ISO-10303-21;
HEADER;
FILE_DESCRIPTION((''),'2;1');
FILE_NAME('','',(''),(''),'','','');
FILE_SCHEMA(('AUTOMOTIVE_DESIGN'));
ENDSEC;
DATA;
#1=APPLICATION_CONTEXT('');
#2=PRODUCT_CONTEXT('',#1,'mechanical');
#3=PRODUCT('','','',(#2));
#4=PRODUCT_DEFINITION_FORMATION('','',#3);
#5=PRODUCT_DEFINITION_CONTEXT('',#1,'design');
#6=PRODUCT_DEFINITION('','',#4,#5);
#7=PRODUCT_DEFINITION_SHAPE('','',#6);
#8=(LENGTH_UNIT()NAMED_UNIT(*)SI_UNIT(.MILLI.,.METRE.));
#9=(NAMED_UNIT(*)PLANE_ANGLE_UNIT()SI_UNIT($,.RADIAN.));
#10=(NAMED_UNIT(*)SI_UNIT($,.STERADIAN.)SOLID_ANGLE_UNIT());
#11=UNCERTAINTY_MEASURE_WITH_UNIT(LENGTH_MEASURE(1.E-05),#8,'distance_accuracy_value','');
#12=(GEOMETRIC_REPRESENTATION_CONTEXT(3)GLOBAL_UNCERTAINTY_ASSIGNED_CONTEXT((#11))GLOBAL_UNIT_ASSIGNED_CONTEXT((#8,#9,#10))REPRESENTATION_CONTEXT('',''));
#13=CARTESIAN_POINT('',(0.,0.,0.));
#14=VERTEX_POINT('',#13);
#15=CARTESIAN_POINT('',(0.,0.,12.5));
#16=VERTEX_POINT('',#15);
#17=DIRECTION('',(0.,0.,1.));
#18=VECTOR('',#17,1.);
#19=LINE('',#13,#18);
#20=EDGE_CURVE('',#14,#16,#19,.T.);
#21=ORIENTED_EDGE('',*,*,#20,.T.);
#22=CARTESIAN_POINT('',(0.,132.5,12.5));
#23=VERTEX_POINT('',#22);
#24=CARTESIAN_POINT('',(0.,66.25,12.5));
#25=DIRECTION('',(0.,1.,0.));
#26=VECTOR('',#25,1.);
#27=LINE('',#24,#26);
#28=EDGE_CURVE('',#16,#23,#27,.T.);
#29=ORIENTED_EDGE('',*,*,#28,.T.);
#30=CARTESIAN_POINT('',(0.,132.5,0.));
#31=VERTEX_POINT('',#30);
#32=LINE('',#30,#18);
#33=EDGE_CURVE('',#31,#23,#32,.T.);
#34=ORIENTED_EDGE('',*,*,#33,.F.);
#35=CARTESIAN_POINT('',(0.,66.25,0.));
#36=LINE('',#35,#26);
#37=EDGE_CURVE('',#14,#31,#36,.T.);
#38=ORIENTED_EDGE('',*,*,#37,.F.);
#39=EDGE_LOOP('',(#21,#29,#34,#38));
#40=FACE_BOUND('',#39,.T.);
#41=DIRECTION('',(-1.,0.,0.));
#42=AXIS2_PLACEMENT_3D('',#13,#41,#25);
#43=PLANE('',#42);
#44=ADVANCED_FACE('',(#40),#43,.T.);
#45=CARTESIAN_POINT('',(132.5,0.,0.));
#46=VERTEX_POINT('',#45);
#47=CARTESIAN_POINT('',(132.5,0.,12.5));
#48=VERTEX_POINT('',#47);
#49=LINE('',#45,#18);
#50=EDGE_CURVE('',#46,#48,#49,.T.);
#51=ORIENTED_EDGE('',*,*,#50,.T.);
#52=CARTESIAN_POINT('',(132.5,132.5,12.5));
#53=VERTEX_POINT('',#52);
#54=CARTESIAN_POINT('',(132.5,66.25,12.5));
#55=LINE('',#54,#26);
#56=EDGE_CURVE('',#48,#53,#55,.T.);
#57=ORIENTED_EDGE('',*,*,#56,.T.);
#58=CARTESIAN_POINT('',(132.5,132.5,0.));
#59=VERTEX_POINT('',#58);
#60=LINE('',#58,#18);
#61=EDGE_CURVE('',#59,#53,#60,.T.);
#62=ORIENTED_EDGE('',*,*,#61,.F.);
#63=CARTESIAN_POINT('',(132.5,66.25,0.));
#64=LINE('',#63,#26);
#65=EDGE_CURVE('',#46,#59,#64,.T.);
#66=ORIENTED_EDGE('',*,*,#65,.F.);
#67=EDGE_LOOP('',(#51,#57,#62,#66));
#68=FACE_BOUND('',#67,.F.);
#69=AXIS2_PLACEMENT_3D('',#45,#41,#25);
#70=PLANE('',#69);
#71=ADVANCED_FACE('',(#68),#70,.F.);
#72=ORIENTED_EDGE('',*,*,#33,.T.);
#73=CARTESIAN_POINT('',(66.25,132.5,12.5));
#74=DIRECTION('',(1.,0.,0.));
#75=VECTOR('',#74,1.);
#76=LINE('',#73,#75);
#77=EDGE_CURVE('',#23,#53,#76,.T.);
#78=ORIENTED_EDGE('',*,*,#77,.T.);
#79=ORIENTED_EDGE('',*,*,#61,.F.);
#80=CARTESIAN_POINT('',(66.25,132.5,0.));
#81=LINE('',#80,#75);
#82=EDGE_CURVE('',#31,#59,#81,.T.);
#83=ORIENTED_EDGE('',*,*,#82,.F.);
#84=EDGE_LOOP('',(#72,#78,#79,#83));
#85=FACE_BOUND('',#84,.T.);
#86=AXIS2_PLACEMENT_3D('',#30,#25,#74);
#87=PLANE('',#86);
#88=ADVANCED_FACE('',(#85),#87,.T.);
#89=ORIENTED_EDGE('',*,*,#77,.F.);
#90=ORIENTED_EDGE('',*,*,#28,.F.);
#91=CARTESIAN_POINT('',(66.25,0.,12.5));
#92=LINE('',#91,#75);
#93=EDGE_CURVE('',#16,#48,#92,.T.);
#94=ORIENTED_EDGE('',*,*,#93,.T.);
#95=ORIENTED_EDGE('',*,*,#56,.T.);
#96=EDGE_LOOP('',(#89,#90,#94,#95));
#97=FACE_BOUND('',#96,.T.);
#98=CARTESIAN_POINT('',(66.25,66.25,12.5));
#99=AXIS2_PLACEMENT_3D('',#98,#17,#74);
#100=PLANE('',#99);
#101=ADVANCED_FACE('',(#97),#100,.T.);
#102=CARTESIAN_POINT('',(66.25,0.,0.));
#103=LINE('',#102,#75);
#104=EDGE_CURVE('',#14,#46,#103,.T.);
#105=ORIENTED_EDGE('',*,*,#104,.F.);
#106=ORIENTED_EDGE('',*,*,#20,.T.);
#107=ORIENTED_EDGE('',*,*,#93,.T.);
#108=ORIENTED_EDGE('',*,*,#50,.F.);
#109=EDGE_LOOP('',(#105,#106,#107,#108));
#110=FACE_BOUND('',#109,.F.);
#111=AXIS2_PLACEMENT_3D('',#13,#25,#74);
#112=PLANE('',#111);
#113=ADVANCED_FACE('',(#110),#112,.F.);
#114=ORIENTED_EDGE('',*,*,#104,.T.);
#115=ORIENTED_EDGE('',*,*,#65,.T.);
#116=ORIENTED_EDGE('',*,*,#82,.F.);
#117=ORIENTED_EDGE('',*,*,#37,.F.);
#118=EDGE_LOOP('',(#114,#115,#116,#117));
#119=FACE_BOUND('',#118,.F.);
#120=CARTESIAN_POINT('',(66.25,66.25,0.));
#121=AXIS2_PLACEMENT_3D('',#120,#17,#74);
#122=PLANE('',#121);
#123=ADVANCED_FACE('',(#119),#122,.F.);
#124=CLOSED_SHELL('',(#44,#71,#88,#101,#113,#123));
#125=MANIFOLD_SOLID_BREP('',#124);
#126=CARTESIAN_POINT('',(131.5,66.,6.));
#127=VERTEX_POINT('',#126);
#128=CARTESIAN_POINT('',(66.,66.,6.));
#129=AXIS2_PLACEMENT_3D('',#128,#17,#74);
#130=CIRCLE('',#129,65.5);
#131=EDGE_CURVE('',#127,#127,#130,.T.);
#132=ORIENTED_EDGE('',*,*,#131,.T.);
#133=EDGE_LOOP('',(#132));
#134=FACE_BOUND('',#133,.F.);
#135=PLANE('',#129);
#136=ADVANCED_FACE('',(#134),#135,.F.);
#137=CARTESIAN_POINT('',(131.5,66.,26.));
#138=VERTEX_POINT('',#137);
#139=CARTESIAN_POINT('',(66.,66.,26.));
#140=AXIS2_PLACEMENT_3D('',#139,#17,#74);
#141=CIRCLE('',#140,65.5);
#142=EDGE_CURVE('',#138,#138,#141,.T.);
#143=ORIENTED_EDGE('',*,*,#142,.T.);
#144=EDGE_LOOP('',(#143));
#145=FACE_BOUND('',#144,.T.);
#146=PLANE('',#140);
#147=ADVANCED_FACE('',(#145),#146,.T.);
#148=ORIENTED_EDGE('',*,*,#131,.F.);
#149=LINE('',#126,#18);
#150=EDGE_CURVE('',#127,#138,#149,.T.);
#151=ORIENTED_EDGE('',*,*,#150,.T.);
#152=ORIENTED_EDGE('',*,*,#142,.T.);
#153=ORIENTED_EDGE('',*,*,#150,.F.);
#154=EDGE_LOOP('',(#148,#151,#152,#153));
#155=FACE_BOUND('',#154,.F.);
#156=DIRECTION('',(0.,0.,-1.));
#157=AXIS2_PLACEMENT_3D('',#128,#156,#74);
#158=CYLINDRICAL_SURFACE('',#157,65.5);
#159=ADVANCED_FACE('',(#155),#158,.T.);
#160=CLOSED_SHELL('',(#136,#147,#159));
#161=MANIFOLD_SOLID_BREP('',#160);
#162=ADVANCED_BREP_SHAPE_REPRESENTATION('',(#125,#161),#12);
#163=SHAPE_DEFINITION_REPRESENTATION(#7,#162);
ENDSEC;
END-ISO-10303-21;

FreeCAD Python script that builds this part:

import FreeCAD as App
import Part
import Sketcher

V = App.Vector
Q = App.Units.Quantity

doc = App.newDocument("Part")
body = doc.addObject("PartDesign::Body", "Body")

# Sketch on XY plane
sketch1 = body.newObject("Sketcher::SketchObject", "Sketch")
sketch1.AttachmentSupport = (doc.getObject("XY_Plane"), [""])
sketch1.MapMode = "FlatFace"
sketch1.addGeometry(Part.LineSegment(V(0, 132.5, 0), V(0, 0, 0)), False)
sketch1.addGeometry(Part.LineSegment(V(0, 0, 0), V(132.5, 0, 0)), False)
sketch1.addGeometry(Part.LineSegment(V(132.5, 0, 0), V(132.5, 132.5, 0)), False)
sketch1.addGeometry(Part.LineSegment(V(132.5, 132.5, 0), V(0, 132.5, 0)), False)
sketch1.addConstraint(Sketcher.Constraint("Coincident", 0, 2, 1, 1))
sketch1.addConstraint(Sketcher.Constraint("Coincident", 1, 2, 2, 1))
sketch1.addConstraint(Sketcher.Constraint("Coincident", 2, 2, 3, 1))
sketch1.addConstraint(Sketcher.Constraint("Coincident", 3, 2, 0, 1))
sketch1.addConstraint(Sketcher.Constraint("Vertical", 0))
sketch1.addConstraint(Sketcher.Constraint("Horizontal", 1))
sketch1.addConstraint(Sketcher.Constraint("Vertical", 2))
sketch1.addConstraint(Sketcher.Constraint("Horizontal", 3))
sketch1.addConstraint(Sketcher.Constraint("Coincident", 0, 2, -1, 1))
sketch1.addConstraint(Sketcher.Constraint("Equal", 3, 0))
sketch1.addConstraint(Sketcher.Constraint("DistanceX", 1, 1, 1, 2, Q("132.5 mm")))
pad1 = body.newObject("PartDesign::Pad", "Pad")
pad1.Profile = sketch1
pad1.Length = 12.5
body2 = doc.addObject("PartDesign::Body", "Body001")

# Sketch on XY plane
sketch2 = body2.newObject("Sketcher::SketchObject", "Sketch001")
sketch2.AttachmentSupport = (doc.getObject("XY_Plane001"), [""])
sketch2.MapMode = "FlatFace"
sketch2.AttachmentOffset = App.Placement(V(0, 0, 6), App.Rotation())
sketch2.addGeometry(Part.Circle(V(66, 66, 0), V(0, 0, 1), 65.5), False)
sketch2.addConstraint(Sketcher.Constraint("Diameter", 0, Q("131 mm")))
sketch2.addConstraint(Sketcher.Constraint("DistanceX", -1, 1, 0, 3, Q("66 mm")))
sketch2.addConstraint(Sketcher.Constraint("DistanceY", -1, 1, 0, 3, Q("66 mm")))
pad2 = body2.newObject("PartDesign::Pad", "Pad001")
pad2.Profile = sketch2
pad2.Length = 20

doc.recompute()
